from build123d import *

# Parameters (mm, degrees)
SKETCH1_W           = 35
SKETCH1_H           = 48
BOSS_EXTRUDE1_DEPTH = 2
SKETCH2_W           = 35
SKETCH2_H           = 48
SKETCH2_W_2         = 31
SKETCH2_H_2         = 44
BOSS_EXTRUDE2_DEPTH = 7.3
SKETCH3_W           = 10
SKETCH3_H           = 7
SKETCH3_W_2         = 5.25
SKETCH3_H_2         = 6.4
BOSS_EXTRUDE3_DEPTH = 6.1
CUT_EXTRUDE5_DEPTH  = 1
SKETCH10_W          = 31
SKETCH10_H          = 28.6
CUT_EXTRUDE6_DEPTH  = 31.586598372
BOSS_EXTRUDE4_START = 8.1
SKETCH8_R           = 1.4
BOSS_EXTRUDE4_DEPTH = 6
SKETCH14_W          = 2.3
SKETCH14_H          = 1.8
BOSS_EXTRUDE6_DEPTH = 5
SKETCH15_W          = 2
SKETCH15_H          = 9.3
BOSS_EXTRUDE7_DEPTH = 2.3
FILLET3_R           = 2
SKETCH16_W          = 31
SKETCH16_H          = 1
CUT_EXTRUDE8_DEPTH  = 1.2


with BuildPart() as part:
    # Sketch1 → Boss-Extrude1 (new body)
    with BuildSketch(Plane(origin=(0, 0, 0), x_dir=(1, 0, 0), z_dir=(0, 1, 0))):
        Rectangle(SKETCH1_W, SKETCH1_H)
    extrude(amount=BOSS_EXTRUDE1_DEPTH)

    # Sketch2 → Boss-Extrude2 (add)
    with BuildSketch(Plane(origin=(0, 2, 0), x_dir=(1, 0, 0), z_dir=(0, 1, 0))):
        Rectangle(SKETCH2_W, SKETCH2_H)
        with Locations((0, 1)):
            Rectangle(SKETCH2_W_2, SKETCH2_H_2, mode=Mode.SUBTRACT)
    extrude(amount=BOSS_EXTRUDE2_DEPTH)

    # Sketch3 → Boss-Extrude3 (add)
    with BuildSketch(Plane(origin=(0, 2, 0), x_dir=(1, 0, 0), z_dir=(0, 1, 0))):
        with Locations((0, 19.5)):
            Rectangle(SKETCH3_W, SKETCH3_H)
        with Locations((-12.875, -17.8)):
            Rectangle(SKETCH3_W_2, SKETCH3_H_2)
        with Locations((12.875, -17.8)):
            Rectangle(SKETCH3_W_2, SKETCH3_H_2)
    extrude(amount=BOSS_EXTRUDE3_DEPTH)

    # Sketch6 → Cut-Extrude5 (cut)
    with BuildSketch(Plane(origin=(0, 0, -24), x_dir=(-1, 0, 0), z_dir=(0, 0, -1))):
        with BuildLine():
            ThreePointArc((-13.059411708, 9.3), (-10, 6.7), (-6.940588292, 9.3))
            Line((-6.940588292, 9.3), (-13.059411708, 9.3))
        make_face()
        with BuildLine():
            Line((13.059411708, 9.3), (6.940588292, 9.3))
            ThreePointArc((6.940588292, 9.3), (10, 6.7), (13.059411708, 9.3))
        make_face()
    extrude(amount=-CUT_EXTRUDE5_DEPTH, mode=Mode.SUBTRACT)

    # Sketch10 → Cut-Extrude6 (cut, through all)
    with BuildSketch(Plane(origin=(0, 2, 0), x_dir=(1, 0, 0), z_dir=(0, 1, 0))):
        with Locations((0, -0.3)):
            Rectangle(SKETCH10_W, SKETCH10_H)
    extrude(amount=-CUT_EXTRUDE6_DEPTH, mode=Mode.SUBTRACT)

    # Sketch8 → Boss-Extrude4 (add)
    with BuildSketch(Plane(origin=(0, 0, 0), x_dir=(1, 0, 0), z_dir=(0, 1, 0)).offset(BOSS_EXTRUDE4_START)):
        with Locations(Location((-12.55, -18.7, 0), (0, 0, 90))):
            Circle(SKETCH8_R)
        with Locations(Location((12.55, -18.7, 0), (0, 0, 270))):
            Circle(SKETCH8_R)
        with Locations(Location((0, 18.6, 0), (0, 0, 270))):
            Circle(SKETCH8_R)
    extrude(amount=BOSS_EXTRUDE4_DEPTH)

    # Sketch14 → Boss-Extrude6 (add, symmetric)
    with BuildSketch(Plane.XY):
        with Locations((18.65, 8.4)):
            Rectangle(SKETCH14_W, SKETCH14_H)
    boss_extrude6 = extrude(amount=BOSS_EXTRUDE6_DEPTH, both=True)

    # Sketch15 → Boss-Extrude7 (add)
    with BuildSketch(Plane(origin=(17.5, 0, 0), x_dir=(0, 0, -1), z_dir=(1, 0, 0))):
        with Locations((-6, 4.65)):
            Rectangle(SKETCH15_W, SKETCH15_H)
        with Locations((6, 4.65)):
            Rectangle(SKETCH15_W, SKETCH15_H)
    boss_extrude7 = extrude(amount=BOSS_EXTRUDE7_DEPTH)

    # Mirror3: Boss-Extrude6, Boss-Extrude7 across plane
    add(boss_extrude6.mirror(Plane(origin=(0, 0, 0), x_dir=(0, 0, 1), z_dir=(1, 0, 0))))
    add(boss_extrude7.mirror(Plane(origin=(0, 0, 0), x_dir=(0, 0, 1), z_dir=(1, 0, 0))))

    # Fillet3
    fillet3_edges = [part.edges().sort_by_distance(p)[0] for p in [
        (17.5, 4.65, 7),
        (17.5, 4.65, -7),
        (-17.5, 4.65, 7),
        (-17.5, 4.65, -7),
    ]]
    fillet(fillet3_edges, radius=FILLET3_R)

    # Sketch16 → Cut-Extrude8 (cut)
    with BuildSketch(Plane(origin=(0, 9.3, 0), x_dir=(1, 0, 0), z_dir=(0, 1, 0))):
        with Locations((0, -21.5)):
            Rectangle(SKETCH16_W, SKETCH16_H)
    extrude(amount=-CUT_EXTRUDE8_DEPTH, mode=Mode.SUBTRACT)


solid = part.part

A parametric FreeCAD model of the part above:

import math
import FreeCAD as App
import Part
import Sketcher


def edges_at(feature, points):
    """Names of the edges that pass closest to the given points."""
    edges = feature.Shape.Edges
    near = lambda p: min(range(len(edges)), key=lambda i: edges[i].distToShape(Part.Vertex(*p))[0])
    return sorted({f"Edge{near(p) + 1}" for p in points})

doc = App.newDocument("Part")
body = doc.addObject("PartDesign::Body", "Body")

# Sketch on XZ plane
sketch1 = doc.addObject("Sketcher::SketchObject", "Sketch")
body.addObject(sketch1)
sketch1.AttachmentSupport = (doc.XZ_Plane, [""])
sketch1.MapMode = "FlatFace"
sketch1.addGeometry([
    Part.LineSegment(App.Vector(-18, -24, 0), App.Vector(-18, 24, 0)),
    Part.LineSegment(App.Vector(-18, 24, 0), App.Vector(18, 24, 0)),
    Part.LineSegment(App.Vector(18, 24, 0), App.Vector(18, -24, 0)),
    Part.LineSegment(App.Vector(18, -24, 0), App.Vector(-18, -24, 0)),
], False)
sketch1.addConstraint([
    Sketcher.Constraint("Coincident", 0, 2, 1, 1),
    Sketcher.Constraint("Coincident", 1, 2, 2, 1),
    Sketcher.Constraint("Coincident", 2, 2, 3, 1),
    Sketcher.Constraint("Coincident", 3, 2, 0, 1),
    Sketcher.Constraint("Vertical", 0),
    Sketcher.Constraint("Horizontal", 1),
    Sketcher.Constraint("Vertical", 2),
    Sketcher.Constraint("Horizontal", 3),
    Sketcher.Constraint("Symmetric", 0, 2, 2, 2, -1, 1),
    Sketcher.Constraint("DistanceX", 1, 1, 1, 2, 35.0),
    Sketcher.Constraint("DistanceY", 0, 1, 0, 2, 48.0),
])
pad1 = doc.addObject("PartDesign::Pad", "Pad")
body.addObject(pad1)
pad1.Profile = sketch1
pad1.Length = 2
pad1.Reversed = True

# Sketch on XZ plane
sketch2 = doc.addObject("Sketcher::SketchObject", "Sketch001")
body.addObject(sketch2)
sketch2.AttachmentSupport = (doc.XZ_Plane, [""])
sketch2.MapMode = "FlatFace"
sketch2.AttachmentOffset = App.Placement(App.Vector(0, 0, -2), App.Rotation())
sketch2.addGeometry([
    Part.LineSegment(App.Vector(-18, -24, 0), App.Vector(-18, 24, 0)),  # 0
    Part.LineSegment(App.Vector(-18, 24, 0), App.Vector(18, 24, 0)),  # 1
    Part.LineSegment(App.Vector(18, 24, 0), App.Vector(18, -24, 0)),  # 2
    Part.LineSegment(App.Vector(18, -24, 0), App.Vector(-18, -24, 0)),  # 3
    Part.LineSegment(App.Vector(16, 21, 0), App.Vector(-16, 21, 0)),  # 4
    Part.LineSegment(App.Vector(-16, 21, 0), App.Vector(-16, -23, 0)),  # 5
    Part.LineSegment(App.Vector(-16, -23, 0), App.Vector(16, -23, 0)),  # 6
    Part.LineSegment(App.Vector(16, -23, 0), App.Vector(16, 21, 0)),  # 7
], False)
sketch2.addConstraint([
    Sketcher.Constraint("Coincident", 0, 2, 1, 1),
    Sketcher.Constraint("Coincident", 1, 2, 2, 1),
    Sketcher.Constraint("Coincident", 2, 2, 3, 1),
    Sketcher.Constraint("Coincident", 3, 2, 0, 1),
    Sketcher.Constraint("Coincident", 4, 2, 5, 1),
    Sketcher.Constraint("Coincident", 5, 2, 6, 1),
    Sketcher.Constraint("Coincident", 6, 2, 7, 1),
    Sketcher.Constraint("Coincident", 7, 2, 4, 1),
    Sketcher.Constraint("Vertical", 0),
    Sketcher.Constraint("Horizontal", 1),
    Sketcher.Constraint("Vertical", 2),
    Sketcher.Constraint("Horizontal", 3),
    Sketcher.Constraint("Horizontal", 4),
    Sketcher.Constraint("Vertical", 5),
    Sketcher.Constraint("Horizontal", 6),
    Sketcher.Constraint("Vertical", 7),
    Sketcher.Constraint("Symmetric", 0, 2, 2, 2, -1, 1),
    Sketcher.Constraint("DistanceX", 1, 1, 1, 2, 35.0),
    Sketcher.Constraint("DistanceX", 4, 2, 4, 1, 31.0),
    Sketcher.Constraint("DistanceY", 0, 1, 0, 2, 48.0),
    Sketcher.Constraint("DistanceY", 5, 2, 5, 1, 44.0),
    Sketcher.Constraint("DistanceY", -1, 1, 4, 2, 21.0),
    Sketcher.Constraint("DistanceX", 0, 2, 4, 2, 2.0),
])
pad2 = doc.addObject("PartDesign::Pad", "Pad001")
body.addObject(pad2)
pad2.Profile = sketch2
pad2.Length = 7.3
pad2.Reversed = True

# Sketch on XZ plane
sketch3 = doc.addObject("Sketcher::SketchObject", "Sketch002")
body.addObject(sketch3)
sketch3.AttachmentSupport = (doc.XZ_Plane, [""])
sketch3.MapMode = "FlatFace"
sketch3.AttachmentOffset = App.Placement(App.Vector(0, 0, -2), App.Rotation())
sketch3.addGeometry([
    Part.LineSegment(App.Vector(-5, -23, 0), App.Vector(-5, -16, 0)),  # 0
    Part.LineSegment(App.Vector(-5, -16, 0), App.Vector(5, -16, 0)),  # 1
    Part.LineSegment(App.Vector(5, -16, 0), App.Vector(5, -23, 0)),  # 2
    Part.LineSegment(App.Vector(5, -23, 0), App.Vector(-5, -23, 0)),  # 3
    Part.LineSegment(App.Vector(-16, 15, 0), App.Vector(-16, 21, 0)),  # 4
    Part.LineSegment(App.Vector(-16, 21, 0), App.Vector(-10, 21, 0)),  # 5
    Part.LineSegment(App.Vector(-10, 21, 0), App.Vector(-10, 15, 0)),  # 6
    Part.LineSegment(App.Vector(-10, 15, 0), App.Vector(-16, 15, 0)),  # 7
    Part.LineSegment(App.Vector(10, 15, 0), App.Vector(10, 21, 0)),  # 8
    Part.LineSegment(App.Vector(10, 21, 0), App.Vector(16, 21, 0)),  # 9
    Part.LineSegment(App.Vector(16, 21, 0), App.Vector(16, 15, 0)),  # 10
    Part.LineSegment(App.Vector(16, 15, 0), App.Vector(10, 15, 0)),  # 11
], False)
sketch3.addConstraint([
    Sketcher.Constraint("Coincident", 0, 2, 1, 1),
    Sketcher.Constraint("Coincident", 1, 2, 2, 1),
    Sketcher.Constraint("Coincident", 2, 2, 3, 1),
    Sketcher.Constraint("Coincident", 3, 2, 0, 1),
    Sketcher.Constraint("Coincident", 4, 2, 5, 1),
    Sketcher.Constraint("Coincident", 5, 2, 6, 1),
    Sketcher.Constraint("Coincident", 6, 2, 7, 1),
    Sketcher.Constraint("Coincident", 7, 2, 4, 1),
    Sketcher.Constraint("Coincident", 8, 2, 9, 1),
    Sketcher.Constraint("Coincident", 9, 2, 10, 1),
    Sketcher.Constraint("Coincident", 10, 2, 11, 1),
    Sketcher.Constraint("Coincident", 11, 2, 8, 1),
    Sketcher.Constraint("Vertical", 0),
    Sketcher.Constraint("Horizontal", 1),
    Sketcher.Constraint("Vertical", 2),
    Sketcher.Constraint("Horizontal", 3),
    Sketcher.Constraint("Vertical", 4),
    Sketcher.Constraint("Horizontal", 5),
    Sketcher.Constraint("Vertical", 6),
    Sketcher.Constraint("Horizontal", 7),
    Sketcher.Constraint("Vertical", 8),
    Sketcher.Constraint("Horizontal", 9),
    Sketcher.Constraint("Vertical", 10),
    Sketcher.Constraint("Horizontal", 11),
    Sketcher.Constraint("Symmetric", 5, 2, 8, 2, -2),
    Sketcher.Constraint("Symmetric", 7, 2, 10, 2, -2),
    Sketcher.Constraint("DistanceX", 1, 1, 1, 2, 10.0),
    Sketcher.Constraint("DistanceY", 0, 1, 0, 2, 7.0),
    Sketcher.Constraint("DistanceY", 4, 1, 4, 2, 6.4),
    Sketcher.Constraint("DistanceX", 0, 2, -1, 1, 5.0),
    Sketcher.Constraint("DistanceY", 0, 2, -1, 1, 16.0),
    Sketcher.Constraint("DistanceY", -1, 1, 4, 2, 21.0),
    Sketcher.Constraint("DistanceX", 4, 2, 9, 2, 31.0),
    Sketcher.Constraint("DistanceX", 5, 1, 5, 2, 5.25),
])
pad3 = doc.addObject("PartDesign::Pad", "Pad002")
body.addObject(pad3)
pad3.Profile = sketch3
pad3.Length = 6.1
pad3.Reversed = True

# Sketch on XY plane
sketch4 = doc.addObject("Sketcher::SketchObject", "Sketch003")
body.addObject(sketch4)
sketch4.AttachmentSupport = (doc.XY_Plane, [""])
sketch4.MapMode = "FlatFace"
sketch4.AttachmentOffset = App.Placement(App.Vector(0, 0, -24), App.Rotation())
sketch4.addGeometry([
    Part.ArcOfCircle(Part.Circle(App.Vector(10, 9.8, 0), App.Vector(0, 0, 1), 3.1), math.radians(-171), math.radians(-9)),
    Part.LineSegment(App.Vector(6.9, 9.3, 0), App.Vector(13.1, 9.3, 0)),
    Part.LineSegment(App.Vector(-13.1, 9.3, 0), App.Vector(-6.9, 9.3, 0)),
    Part.ArcOfCircle(Part.Circle(App.Vector(-10, 9.8, 0), App.Vector(0, 0, 1), 3.1), math.radians(-171), math.radians(-9)),
], False)
sketch4.addConstraint([
    Sketcher.Constraint("Coincident", 0, 1, 1, 1),
    Sketcher.Constraint("Coincident", 1, 2, 0, 2),
    Sketcher.Constraint("Coincident", 2, 1, 3, 1),
    Sketcher.Constraint("Coincident", 3, 2, 2, 2),
    Sketcher.Constraint("Horizontal", 1),
    Sketcher.Constraint("Horizontal", 2),
    Sketcher.Constraint("Equal", 0, 3),
    Sketcher.Constraint("Symmetric", 0, 3, 3, 3, -2),
    Sketcher.Constraint("Horizontal", 1, 2, 2, 1),
    Sketcher.Constraint("Radius", 0, 3.1),
    Sketcher.Constraint("DistanceX", -1, 1, 0, 3, 10.0),
    Sketcher.Constraint("DistanceY", -1, 1, 0, 3, 9.8),
    Sketcher.Constraint("DistanceY", -1, 1, 0, 1, 9.3),
])
pocket1 = doc.addObject("PartDesign::Pocket", "Pocket")
body.addObject(pocket1)
pocket1.Profile = sketch4
pocket1.Length = 1
pocket1.Reversed = True

# Sketch on XZ plane
sketch5 = doc.addObject("Sketcher::SketchObject", "Sketch004")
body.addObject(sketch5)
sketch5.AttachmentSupport = (doc.XZ_Plane, [""])
sketch5.MapMode = "FlatFace"
sketch5.AttachmentOffset = App.Placement(App.Vector(0, 0, -2), App.Rotation())
sketch5.addGeometry([
    Part.LineSegment(App.Vector(-16, -14, 0), App.Vector(-16, 15, 0)),
    Part.LineSegment(App.Vector(-16, 15, 0), App.Vector(16, 15, 0)),
    Part.LineSegment(App.Vector(16, 15, 0), App.Vector(16, -14, 0)),
    Part.LineSegment(App.Vector(16, -14, 0), App.Vector(-16, -14, 0)),
], False)
sketch5.addConstraint([
    Sketcher.Constraint("Coincident", 0, 2, 1, 1),
    Sketcher.Constraint("Coincident", 1, 2, 2, 1),
    Sketcher.Constraint("Coincident", 2, 2, 3, 1),
    Sketcher.Constraint("Coincident", 3, 2, 0, 1),
    Sketcher.Constraint("Vertical", 0),
    Sketcher.Constraint("Horizontal", 1),
    Sketcher.Constraint("Vertical", 2),
    Sketcher.Constraint("Horizontal", 3),
    Sketcher.Constraint("DistanceX", 1, 1, 1, 2, 31.0),
    Sketcher.Constraint("DistanceY", 0, 1, 0, 2, 28.6),
    Sketcher.Constraint("DistanceY", 2, 2, -1, 1, 14.0),
    Sketcher.Constraint("DistanceX", 0, 2, -1, 1, 15.5),
])
pocket2 = doc.addObject("PartDesign::Pocket", "Pocket001")
body.addObject(pocket2)
pocket2.Profile = sketch5
pocket2.Type = "ThroughAll"
pocket2.Reversed = True

# Sketch on XZ plane
sketch6 = doc.addObject("Sketcher::SketchObject", "Sketch005")
body.addObject(sketch6)
sketch6.AttachmentSupport = (doc.XZ_Plane, [""])
sketch6.MapMode = "FlatFace"
sketch6.AttachmentOffset = App.Placement(App.Vector(0, 0, -8.1), App.Rotation())
sketch6.addGeometry([
    Part.Circle(App.Vector(-12.6, 18.7, 0), App.Vector(0, 0, 1), 1.4),
    Part.Circle(App.Vector(12.6, 18.7, 0), App.Vector(0, 0, 1), 1.4),
    Part.Circle(App.Vector(0, -18.6, 0), App.Vector(0, 0, 1), 1.4),
], False)
sketch6.addConstraint([
    Sketcher.Constraint("Equal", 0, 1),
    Sketcher.Constraint("Equal", 1, 2),
    Sketcher.Constraint("Symmetric", 0, 3, 1, 3, -2),
    Sketcher.Constraint("PointOnObject", 2, 3, -2),
    Sketcher.Constraint("Diameter", 0, 2.8),
    Sketcher.Constraint("DistanceY", -1, 1, 0, 3, 18.7),
    Sketcher.Constraint("DistanceY", 2, 3, -1, 1, 18.6),
    Sketcher.Constraint("DistanceX", 0, 3, 1, 3, 25.1),
])
pad4 = doc.addObject("PartDesign::Pad", "Pad003")
body.addObject(pad4)
pad4.Profile = sketch6
pad4.Length = 6
pad4.Reversed = True

# Sketch on XY plane
sketch7 = doc.addObject("Sketcher::SketchObject", "Sketch006")
body.addObject(sketch7)
sketch7.AttachmentSupport = (doc.XY_Plane, [""])
sketch7.MapMode = "FlatFace"
sketch7.addGeometry([
    Part.LineSegment(App.Vector(17.5, 9.3, 0), App.Vector(17.5, 7.5, 0)),
    Part.LineSegment(App.Vector(17.5, 7.5, 0), App.Vector(19.8, 7.5, 0)),
    Part.LineSegment(App.Vector(19.8, 7.5, 0), App.Vector(19.8, 9.3, 0)),
    Part.LineSegment(App.Vector(19.8, 9.3, 0), App.Vector(17.5, 9.3, 0)),
], False)
sketch7.addConstraint([
    Sketcher.Constraint("Coincident", 0, 2, 1, 1),
    Sketcher.Constraint("Coincident", 1, 2, 2, 1),
    Sketcher.Constraint("Coincident", 2, 2, 3, 1),
    Sketcher.Constraint("Coincident", 3, 2, 0, 1),
    Sketcher.Constraint("Vertical", 0),
    Sketcher.Constraint("Horizontal", 1),
    Sketcher.Constraint("Vertical", 2),
    Sketcher.Constraint("Horizontal", 3),
    Sketcher.Constraint("DistanceX", 1, 1, 1, 2, 2.3),
    Sketcher.Constraint("DistanceY", 0, 2, 0, 1, 1.8),
    Sketcher.Constraint("DistanceX", -1, 1, 0, 2, 17.5),
    Sketcher.Constraint("DistanceY", -1, 1, 0, 2, 7.5),
])
pad5 = doc.addObject("PartDesign::Pad", "Pad004")
body.addObject(pad5)
pad5.Profile = sketch7
pad5.Length = 10
pad5.Midplane = True

# Sketch on YZ plane
sketch8 = doc.addObject("Sketcher::SketchObject", "Sketch007")
body.addObject(sketch8)
sketch8.AttachmentSupport = (doc.YZ_Plane, [""])
sketch8.MapMode = "FlatFace"
sketch8.AttachmentOffset = App.Placement(App.Vector(0, 0, 17.5), App.Rotation())
sketch8.addGeometry([
    Part.LineSegment(App.Vector(9.3, 7, 0), App.Vector(0, 7, 0)),  # 0
    Part.LineSegment(App.Vector(0, 7, 0), App.Vector(0, 5, 0)),  # 1
    Part.LineSegment(App.Vector(0, 5, 0), App.Vector(9.3, 5, 0)),  # 2
    Part.LineSegment(App.Vector(9.3, 5, 0), App.Vector(9.3, 7, 0)),  # 3
    Part.LineSegment(App.Vector(9.3, -5, 0), App.Vector(0, -5, 0)),  # 4
    Part.LineSegment(App.Vector(0, -5, 0), App.Vector(0, -7, 0)),  # 5
    Part.LineSegment(App.Vector(0, -7, 0), App.Vector(9.3, -7, 0)),  # 6
    Part.LineSegment(App.Vector(9.3, -7, 0), App.Vector(9.3, -5, 0)),  # 7
], False)
sketch8.addConstraint([
    Sketcher.Constraint("Coincident", 0, 2, 1, 1),
    Sketcher.Constraint("Coincident", 1, 2, 2, 1),
    Sketcher.Constraint("Coincident", 2, 2, 3, 1),
    Sketcher.Constraint("Coincident", 3, 2, 0, 1),
    Sketcher.Constraint("Coincident", 4, 2, 5, 1),
    Sketcher.Constraint("Coincident", 5, 2, 6, 1),
    Sketcher.Constraint("Coincident", 6, 2, 7, 1),
    Sketcher.Constraint("Coincident", 7, 2, 4, 1),
    Sketcher.Constraint("Horizontal", 0),
    Sketcher.Constraint("Vertical", 1),
    Sketcher.Constraint("Horizontal", 2),
    Sketcher.Constraint("Vertical", 3),
    Sketcher.Constraint("Horizontal", 4),
    Sketcher.Constraint("Vertical", 5),
    Sketcher.Constraint("Horizontal", 6),
    Sketcher.Constraint("Vertical", 7),
    Sketcher.Constraint("Symmetric", 1, 2, 4, 2, -1, 1),
    Sketcher.Constraint("Symmetric", 0, 2, 5, 2, -1),
    Sketcher.Constraint("Vertical", 3, 2, 6, 2),
    Sketcher.Constraint("DistanceY", 1, 2, 1, 1, 2.0),
    Sketcher.Constraint("DistanceX", 0, 2, 0, 1, 9.3),
    Sketcher.Constraint("DistanceY", -1, 1, 0, 2, 7.0),
])
pad6 = doc.addObject("PartDesign::Pad", "Pad005")
body.addObject(pad6)
pad6.Profile = sketch8
pad6.Length = 2.3
doc.recompute()

mirrored = doc.addObject("PartDesign::Mirrored", "Mirrored")
body.addObject(mirrored)
mirrored.Originals = [pad5, pad6]
mirrored.MirrorPlane = (doc.YZ_Plane, [""])
body.Tip = mirrored
doc.recompute()

fillet = doc.addObject("PartDesign::Fillet", "Fillet")
body.addObject(fillet)
fillet.Base = (mirrored, edges_at(mirrored, [
    (17.5, 4.65, 7),
    (17.5, 4.65, -7),
    (-17.5, 4.65, 7),
    (-17.5, 4.65, -7),
]))
fillet.Radius = 2

# Sketch on XZ plane
sketch9 = doc.addObject("Sketcher::SketchObject", "Sketch008")
body.addObject(sketch9)
sketch9.AttachmentSupport = (doc.XZ_Plane, [""])
sketch9.MapMode = "FlatFace"
sketch9.AttachmentOffset = App.Placement(App.Vector(0, 0, -9.3), App.Rotation())
sketch9.addGeometry([
    Part.LineSegment(App.Vector(-15.5, 21, 0), App.Vector(-15.5, 22, 0)),
    Part.LineSegment(App.Vector(-15.5, 22, 0), App.Vector(15.5, 22, 0)),
    Part.LineSegment(App.Vector(15.5, 22, 0), App.Vector(15.5, 21, 0)),
    Part.LineSegment(App.Vector(15.5, 21, 0), App.Vector(-15.5, 21, 0)),
], False)
sketch9.addConstraint([
    Sketcher.Constraint("Coincident", 0, 2, 1, 1),
    Sketcher.Constraint("Coincident", 1, 2, 2, 1),
    Sketcher.Constraint("Coincident", 2, 2, 3, 1),
    Sketcher.Constraint("Coincident", 3, 2, 0, 1),
    Sketcher.Constraint("Vertical", 0),
    Sketcher.Constraint("Horizontal", 1),
    Sketcher.Constraint("Vertical", 2),
    Sketcher.Constraint("Horizontal", 3),
    Sketcher.Constraint("DistanceX", 1, 1, 1, 2, 31.0),
    Sketcher.Constraint("DistanceY", 0, 1, 0, 2, 1.0),
    Sketcher.Constraint("DistanceY", -1, 1, 0, 2, 22.0),
    Sketcher.Constraint("DistanceX", 0, 2, -1, 1, 15.5),
])
pocket3 = doc.addObject("PartDesign::Pocket", "Pocket002")
body.addObject(pocket3)
pocket3.Profile = sketch9
pocket3.Length = 1.2
pocket3.Reversed = True

doc.recompute()
